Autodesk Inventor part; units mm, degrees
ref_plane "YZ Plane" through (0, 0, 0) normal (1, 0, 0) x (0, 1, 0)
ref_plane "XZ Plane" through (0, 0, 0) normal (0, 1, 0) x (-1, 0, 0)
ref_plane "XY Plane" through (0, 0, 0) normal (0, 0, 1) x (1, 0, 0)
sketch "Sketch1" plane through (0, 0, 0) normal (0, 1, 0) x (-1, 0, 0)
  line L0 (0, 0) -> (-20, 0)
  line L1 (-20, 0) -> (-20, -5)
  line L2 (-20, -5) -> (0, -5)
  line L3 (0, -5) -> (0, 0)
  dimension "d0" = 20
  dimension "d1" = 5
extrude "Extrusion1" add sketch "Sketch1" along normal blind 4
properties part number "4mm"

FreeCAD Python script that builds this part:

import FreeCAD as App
import Part
import Sketcher

doc = App.newDocument("Part")
body = doc.addObject("PartDesign::Body", "Body")

# Sketch on XZ plane
sketch1 = doc.addObject("Sketcher::SketchObject", "Sketch")
body.addObject(sketch1)
sketch1.AttachmentSupport = (doc.XZ_Plane, [""])
sketch1.MapMode = "FlatFace"
sketch1.addGeometry(Part.LineSegment(App.Vector(0, -5, 0), App.Vector(0, 0, 0)), False)
sketch1.addGeometry(Part.LineSegment(App.Vector(0, 0, 0), App.Vector(20, 0, 0)), False)
sketch1.addGeometry(Part.LineSegment(App.Vector(20, 0, 0), App.Vector(20, -5, 0)), False)
sketch1.addGeometry(Part.LineSegment(App.Vector(20, -5, 0), App.Vector(0, -5, 0)), False)
sketch1.addConstraint(Sketcher.Constraint("Coincident", 0, 2, 1, 1))
sketch1.addConstraint(Sketcher.Constraint("Coincident", 1, 2, 2, 1))
sketch1.addConstraint(Sketcher.Constraint("Coincident", 2, 2, 3, 1))
sketch1.addConstraint(Sketcher.Constraint("Coincident", 3, 2, 0, 1))
sketch1.addConstraint(Sketcher.Constraint("Vertical", 0))
sketch1.addConstraint(Sketcher.Constraint("Horizontal", 1))
sketch1.addConstraint(Sketcher.Constraint("Vertical", 2))
sketch1.addConstraint(Sketcher.Constraint("Horizontal", 3))
sketch1.addConstraint(Sketcher.Constraint("Coincident", 0, 2, -1, 1))
sketch1.addConstraint(Sketcher.Constraint("DistanceX", 1, 1, 1, 2, 20.0))
sketch1.addConstraint(Sketcher.Constraint("DistanceY", 0, 1, 0, 2, 5.0))
pad1 = doc.addObject("PartDesign::Pad", "Pad")
body.addObject(pad1)
pad1.Profile = sketch1
pad1.Length = 4
pad1.Reversed = True

doc.recompute()
